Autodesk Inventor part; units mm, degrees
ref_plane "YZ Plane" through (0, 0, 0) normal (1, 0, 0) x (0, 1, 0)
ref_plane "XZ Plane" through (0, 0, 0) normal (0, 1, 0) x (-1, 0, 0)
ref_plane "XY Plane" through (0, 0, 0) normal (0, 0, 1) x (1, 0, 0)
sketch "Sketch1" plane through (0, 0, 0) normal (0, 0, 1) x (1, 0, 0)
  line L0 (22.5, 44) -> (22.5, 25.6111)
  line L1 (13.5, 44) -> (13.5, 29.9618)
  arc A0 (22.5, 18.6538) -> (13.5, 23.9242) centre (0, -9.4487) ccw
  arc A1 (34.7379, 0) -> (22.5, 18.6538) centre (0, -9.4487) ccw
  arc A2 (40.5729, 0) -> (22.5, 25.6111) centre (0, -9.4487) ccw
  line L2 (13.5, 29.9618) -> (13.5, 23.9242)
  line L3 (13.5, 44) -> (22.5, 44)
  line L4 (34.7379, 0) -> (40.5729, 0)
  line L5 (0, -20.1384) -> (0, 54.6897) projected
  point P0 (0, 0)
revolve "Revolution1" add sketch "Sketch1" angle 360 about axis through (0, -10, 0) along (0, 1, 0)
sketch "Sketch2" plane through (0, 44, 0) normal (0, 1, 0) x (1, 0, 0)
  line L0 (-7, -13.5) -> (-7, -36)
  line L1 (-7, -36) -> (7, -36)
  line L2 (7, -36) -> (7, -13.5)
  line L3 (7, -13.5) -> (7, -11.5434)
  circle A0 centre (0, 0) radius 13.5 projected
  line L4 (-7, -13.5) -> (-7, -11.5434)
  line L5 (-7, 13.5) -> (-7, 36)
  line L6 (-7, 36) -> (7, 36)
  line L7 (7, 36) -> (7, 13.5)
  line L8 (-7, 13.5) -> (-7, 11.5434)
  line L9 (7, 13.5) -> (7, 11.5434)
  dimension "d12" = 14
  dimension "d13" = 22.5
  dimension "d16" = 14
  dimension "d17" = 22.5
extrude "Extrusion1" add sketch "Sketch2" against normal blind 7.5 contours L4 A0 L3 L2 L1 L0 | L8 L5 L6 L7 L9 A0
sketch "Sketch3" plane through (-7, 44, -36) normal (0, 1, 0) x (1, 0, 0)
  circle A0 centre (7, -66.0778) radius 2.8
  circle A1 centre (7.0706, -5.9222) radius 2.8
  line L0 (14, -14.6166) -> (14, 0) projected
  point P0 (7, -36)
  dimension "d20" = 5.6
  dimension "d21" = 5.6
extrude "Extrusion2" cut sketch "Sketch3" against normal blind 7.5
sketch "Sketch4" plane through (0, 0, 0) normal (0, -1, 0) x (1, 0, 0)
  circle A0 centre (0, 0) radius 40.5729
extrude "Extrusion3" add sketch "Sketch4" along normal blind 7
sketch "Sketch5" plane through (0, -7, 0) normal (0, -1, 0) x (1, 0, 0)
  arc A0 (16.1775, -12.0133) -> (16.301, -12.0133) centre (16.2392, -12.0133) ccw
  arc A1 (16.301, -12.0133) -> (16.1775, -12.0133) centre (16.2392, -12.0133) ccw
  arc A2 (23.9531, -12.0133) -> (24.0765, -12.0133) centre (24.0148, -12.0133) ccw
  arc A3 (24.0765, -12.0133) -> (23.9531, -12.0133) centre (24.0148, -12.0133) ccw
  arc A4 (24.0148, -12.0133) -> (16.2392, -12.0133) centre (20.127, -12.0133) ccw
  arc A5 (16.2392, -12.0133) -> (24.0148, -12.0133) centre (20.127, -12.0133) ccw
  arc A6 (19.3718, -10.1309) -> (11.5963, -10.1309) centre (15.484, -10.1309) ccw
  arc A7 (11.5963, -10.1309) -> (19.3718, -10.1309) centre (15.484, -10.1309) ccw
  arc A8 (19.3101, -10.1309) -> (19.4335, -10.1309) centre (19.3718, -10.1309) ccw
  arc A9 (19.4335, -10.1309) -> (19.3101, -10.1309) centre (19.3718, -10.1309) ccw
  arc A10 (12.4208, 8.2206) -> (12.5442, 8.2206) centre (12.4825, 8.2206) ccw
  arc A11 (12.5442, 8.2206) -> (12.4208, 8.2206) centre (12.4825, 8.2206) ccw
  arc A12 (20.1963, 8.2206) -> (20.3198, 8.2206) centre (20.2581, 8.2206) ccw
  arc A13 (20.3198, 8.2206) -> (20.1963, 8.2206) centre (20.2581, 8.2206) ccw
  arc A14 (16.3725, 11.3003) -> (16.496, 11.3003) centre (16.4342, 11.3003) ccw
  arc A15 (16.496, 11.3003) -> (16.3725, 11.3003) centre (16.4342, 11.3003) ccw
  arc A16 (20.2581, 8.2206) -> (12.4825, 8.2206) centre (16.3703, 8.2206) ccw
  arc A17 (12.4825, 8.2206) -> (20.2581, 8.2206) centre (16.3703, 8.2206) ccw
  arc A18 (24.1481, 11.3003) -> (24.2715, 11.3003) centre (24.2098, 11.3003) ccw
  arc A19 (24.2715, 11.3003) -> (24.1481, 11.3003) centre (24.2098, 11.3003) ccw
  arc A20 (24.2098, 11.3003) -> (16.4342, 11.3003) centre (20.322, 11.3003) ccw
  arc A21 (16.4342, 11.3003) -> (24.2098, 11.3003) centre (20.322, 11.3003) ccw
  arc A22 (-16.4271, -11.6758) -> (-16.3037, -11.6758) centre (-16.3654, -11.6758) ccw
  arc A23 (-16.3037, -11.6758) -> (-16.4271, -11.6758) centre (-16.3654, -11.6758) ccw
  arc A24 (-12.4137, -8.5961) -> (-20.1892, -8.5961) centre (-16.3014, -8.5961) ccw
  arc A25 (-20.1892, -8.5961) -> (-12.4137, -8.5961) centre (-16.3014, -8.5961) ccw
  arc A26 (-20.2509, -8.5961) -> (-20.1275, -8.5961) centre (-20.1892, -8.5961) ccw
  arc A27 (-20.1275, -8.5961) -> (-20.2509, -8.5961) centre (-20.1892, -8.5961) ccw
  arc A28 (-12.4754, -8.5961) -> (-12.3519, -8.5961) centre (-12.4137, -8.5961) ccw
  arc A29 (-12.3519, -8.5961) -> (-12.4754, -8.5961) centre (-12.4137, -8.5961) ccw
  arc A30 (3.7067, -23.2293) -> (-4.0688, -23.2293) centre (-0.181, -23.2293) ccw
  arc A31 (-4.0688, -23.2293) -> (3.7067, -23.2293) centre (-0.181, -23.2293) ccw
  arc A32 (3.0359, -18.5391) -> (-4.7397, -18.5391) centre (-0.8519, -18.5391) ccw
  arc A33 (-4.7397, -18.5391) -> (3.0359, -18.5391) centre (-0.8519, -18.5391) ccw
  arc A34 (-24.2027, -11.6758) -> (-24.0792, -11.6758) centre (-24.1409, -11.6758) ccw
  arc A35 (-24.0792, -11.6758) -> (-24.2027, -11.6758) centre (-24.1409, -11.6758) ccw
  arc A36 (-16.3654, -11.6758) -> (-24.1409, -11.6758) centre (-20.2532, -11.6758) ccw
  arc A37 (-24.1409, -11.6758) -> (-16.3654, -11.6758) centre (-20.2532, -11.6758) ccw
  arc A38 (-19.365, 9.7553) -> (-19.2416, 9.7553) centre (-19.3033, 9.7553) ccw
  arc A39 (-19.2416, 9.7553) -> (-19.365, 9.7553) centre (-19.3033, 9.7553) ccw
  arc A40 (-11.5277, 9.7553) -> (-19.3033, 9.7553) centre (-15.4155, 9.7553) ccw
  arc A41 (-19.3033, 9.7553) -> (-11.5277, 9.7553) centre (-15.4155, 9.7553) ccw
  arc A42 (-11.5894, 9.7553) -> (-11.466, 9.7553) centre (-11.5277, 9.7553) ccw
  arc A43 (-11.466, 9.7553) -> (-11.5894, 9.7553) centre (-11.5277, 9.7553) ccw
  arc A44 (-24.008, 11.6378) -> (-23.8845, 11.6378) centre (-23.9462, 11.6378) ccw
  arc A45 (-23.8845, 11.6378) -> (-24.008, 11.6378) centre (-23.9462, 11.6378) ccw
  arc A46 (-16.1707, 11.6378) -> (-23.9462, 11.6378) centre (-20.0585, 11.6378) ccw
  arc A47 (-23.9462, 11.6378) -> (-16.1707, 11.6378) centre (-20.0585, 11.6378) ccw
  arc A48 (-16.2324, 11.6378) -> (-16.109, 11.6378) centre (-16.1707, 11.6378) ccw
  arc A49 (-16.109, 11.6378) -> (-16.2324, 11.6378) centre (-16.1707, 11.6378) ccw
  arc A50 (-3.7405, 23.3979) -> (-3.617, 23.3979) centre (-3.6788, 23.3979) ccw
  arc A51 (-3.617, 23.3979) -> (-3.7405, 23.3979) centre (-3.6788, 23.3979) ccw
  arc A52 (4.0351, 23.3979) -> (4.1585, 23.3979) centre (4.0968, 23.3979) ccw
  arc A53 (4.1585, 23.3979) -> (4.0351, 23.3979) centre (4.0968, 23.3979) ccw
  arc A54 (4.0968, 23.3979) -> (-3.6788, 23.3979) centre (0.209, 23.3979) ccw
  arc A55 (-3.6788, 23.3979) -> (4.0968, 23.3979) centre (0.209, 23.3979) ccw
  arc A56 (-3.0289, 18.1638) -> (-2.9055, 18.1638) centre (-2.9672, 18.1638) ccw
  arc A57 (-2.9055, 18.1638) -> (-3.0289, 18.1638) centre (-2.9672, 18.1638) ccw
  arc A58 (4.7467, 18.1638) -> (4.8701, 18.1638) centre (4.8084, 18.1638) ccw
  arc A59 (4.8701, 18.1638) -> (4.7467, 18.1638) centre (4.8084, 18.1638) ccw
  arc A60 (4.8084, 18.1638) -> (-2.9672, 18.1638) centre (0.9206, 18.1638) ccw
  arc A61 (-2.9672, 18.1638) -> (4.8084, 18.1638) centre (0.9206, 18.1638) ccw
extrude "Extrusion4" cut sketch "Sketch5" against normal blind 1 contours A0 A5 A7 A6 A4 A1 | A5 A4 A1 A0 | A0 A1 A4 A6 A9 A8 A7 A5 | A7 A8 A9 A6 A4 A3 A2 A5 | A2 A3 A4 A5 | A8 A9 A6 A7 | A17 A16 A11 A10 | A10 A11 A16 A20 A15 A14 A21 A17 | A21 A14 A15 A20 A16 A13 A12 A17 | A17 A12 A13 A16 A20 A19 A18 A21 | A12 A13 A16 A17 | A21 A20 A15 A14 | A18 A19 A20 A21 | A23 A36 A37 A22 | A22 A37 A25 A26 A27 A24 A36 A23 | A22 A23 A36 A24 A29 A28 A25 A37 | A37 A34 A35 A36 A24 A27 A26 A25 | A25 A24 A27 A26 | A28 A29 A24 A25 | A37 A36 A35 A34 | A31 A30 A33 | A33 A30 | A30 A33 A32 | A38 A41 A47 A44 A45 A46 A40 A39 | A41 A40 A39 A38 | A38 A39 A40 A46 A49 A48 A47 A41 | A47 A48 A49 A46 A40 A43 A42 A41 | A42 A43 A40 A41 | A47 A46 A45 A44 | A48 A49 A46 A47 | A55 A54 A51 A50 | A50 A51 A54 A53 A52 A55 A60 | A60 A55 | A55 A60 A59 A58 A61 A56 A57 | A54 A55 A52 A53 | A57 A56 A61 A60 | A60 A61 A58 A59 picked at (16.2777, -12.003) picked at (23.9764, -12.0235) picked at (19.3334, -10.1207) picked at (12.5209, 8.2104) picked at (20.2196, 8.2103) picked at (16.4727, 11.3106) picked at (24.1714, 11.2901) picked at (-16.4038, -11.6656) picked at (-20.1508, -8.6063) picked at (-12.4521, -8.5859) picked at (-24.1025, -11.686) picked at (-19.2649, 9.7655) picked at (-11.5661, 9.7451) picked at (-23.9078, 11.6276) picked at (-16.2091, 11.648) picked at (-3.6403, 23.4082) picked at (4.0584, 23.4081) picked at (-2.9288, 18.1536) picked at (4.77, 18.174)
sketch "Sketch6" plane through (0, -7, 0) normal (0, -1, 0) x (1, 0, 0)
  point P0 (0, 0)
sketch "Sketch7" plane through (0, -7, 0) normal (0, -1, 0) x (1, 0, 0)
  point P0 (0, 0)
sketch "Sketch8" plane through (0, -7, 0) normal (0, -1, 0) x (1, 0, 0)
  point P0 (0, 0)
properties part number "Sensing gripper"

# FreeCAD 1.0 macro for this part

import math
import FreeCAD as App
import Part
import Sketcher
from FreeCAD import Vector
Q = App.Units.Quantity

doc = App.newDocument("Part")
body = doc.addObject("PartDesign::Body", "Body")

sketch1 = body.newObject("Sketcher::SketchObject", "Sketch")
sketch1.AttachmentSupport = (doc.getObject("XY_Plane"), [""])
sketch1.MapMode = "FlatFace"
sketch1.addGeometry(Part.LineSegment(Vector(22, 26, 0), Vector(22, 44, 0)), False)
sketch1.addGeometry(Part.LineSegment(Vector(22, 44, 0), Vector(14, 44, 0)), False)
sketch1.addGeometry(Part.LineSegment(Vector(14, 44, 0), Vector(14, 24, 0)), False)
sketch1.addGeometry(Part.ArcOfCircle(Part.Circle(Vector(0, -9, 0), Vector(0, 0, 1), 36), math.radians(51.32), math.radians(67.98)), False)
sketch1.addGeometry(Part.ArcOfCircle(Part.Circle(Vector(0, -9, 0), Vector(0, 0, 1), 36), math.radians(15), math.radians(51)), False)
sketch1.addGeometry(Part.LineSegment(Vector(35, 0, 0), Vector(41, 0, 0)), False)
sketch1.addGeometry(Part.ArcOfCircle(Part.Circle(Vector(0, -9, 0), Vector(0, 0, 1), 42), math.radians(13), math.radians(57)), False)
sketch1.addConstraint(Sketcher.Constraint("Coincident", 0, 2, 1, 1))
sketch1.addConstraint(Sketcher.Constraint("Coincident", 1, 2, 2, 1))
sketch1.addConstraint(Sketcher.Constraint("Coincident", 2, 2, 3, 2))
sketch1.addConstraint(Sketcher.Constraint("Tangent", 3, 1, 4, 2))
sketch1.addConstraint(Sketcher.Constraint("Coincident", 4, 1, 5, 1))
sketch1.addConstraint(Sketcher.Constraint("Coincident", 5, 2, 6, 1))
sketch1.addConstraint(Sketcher.Constraint("Coincident", 6, 2, 0, 1))
sketch1.addConstraint(Sketcher.Constraint("Vertical", 0))
sketch1.addConstraint(Sketcher.Constraint("Horizontal", 1))
sketch1.addConstraint(Sketcher.Constraint("Vertical", 2))
sketch1.addConstraint(Sketcher.Constraint("Horizontal", 5))
sketch1.addConstraint(Sketcher.Constraint("Coincident", 6, 3, 3, 3))
sketch1.addConstraint(Sketcher.Constraint("Equal", 3, 4))
sketch1.addConstraint(Sketcher.Constraint("PointOnObject", 3, 3, -2))
sketch1.addConstraint(Sketcher.Constraint("PointOnObject", 4, 1, -1))
sketch1.addConstraint(Sketcher.Constraint("Vertical", 0, 2, 3, 1))
sketch1.addConstraint(Sketcher.Constraint("Radius", 3, Q("36 mm")))
sketch1.addConstraint(Sketcher.Constraint("DistanceX", 1, 2, 1, 1, Q("9 mm")))
sketch1.addConstraint(Sketcher.Constraint("DistanceY", -1, 1, 0, 2, Q("44 mm")))
sketch1.addConstraint(Sketcher.Constraint("DistanceX", -1, 1, 0, 2, Q("22.5 mm")))
sketch1.addConstraint(Sketcher.Constraint("Radius", 6, Q("41.6586 mm")))
sketch1.addConstraint(Sketcher.Constraint("DistanceX", 5, 1, 5, 2, Q("5.835 mm")))
revolution = body.newObject("PartDesign::Revolution", "Revolution")
revolution.Profile = sketch1
revolution.ReferenceAxis = (sketch1, ["V_Axis"])
revolution.Angle = 360

sketch2 = body.newObject("Sketcher::SketchObject", "Sketch001")
sketch2.AttachmentSupport = (doc.getObject("XZ_Plane"), [""])
sketch2.MapMode = "FlatFace"
sketch2.AttachmentOffset = App.Placement(Vector(0, 0, -44), App.Rotation())
sketch2.addGeometry(Part.LineSegment(Vector(-7, 12, 0), Vector(-7, 36, 0)), False)
sketch2.addGeometry(Part.LineSegment(Vector(-7, 36, 0), Vector(7, 36, 0)), False)
sketch2.addGeometry(Part.LineSegment(Vector(7, 36, 0), Vector(7, 12, 0)), False)
sketch2.addGeometry(Part.ArcOfCircle(Part.Circle(Vector(0, 0, 0), Vector(0, 0, 1), 14), math.radians(59), math.radians(121)), False)
sketch2.addGeometry(Part.LineSegment(Vector(-7, -36, 0), Vector(-7, -12, 0)), False)
sketch2.addGeometry(Part.ArcOfCircle(Part.Circle(Vector(0, 0, 0), Vector(0, 0, 1), 14), math.radians(-121), math.radians(-59)), False)
sketch2.addGeometry(Part.LineSegment(Vector(7, -12, 0), Vector(7, -36, 0)), False)
sketch2.addGeometry(Part.LineSegment(Vector(7, -36, 0), Vector(-7, -36, 0)), False)
sketch2.addConstraint(Sketcher.Constraint("Coincident", 0, 2, 1, 1))
sketch2.addConstraint(Sketcher.Constraint("Coincident", 1, 2, 2, 1))
sketch2.addConstraint(Sketcher.Constraint("Coincident", 2, 2, 3, 1))
sketch2.addConstraint(Sketcher.Constraint("Coincident", 3, 2, 0, 1))
sketch2.addConstraint(Sketcher.Constraint("Coincident", 4, 2, 5, 1))
sketch2.addConstraint(Sketcher.Constraint("Coincident", 5, 2, 6, 1))
sketch2.addConstraint(Sketcher.Constraint("Coincident", 6, 2, 7, 1))
sketch2.addConstraint(Sketcher.Constraint("Coincident", 7, 2, 4, 1))
sketch2.addConstraint(Sketcher.Constraint("Vertical", 0))
sketch2.addConstraint(Sketcher.Constraint("Horizontal", 1))
sketch2.addConstraint(Sketcher.Constraint("Vertical", 2))
sketch2.addConstraint(Sketcher.Constraint("Vertical", 4))
sketch2.addConstraint(Sketcher.Constraint("Vertical", 6))
sketch2.addConstraint(Sketcher.Constraint("Horizontal", 7))
sketch2.addConstraint(Sketcher.Constraint("Coincident", 3, 3, -1, 1))
sketch2.addConstraint(Sketcher.Constraint("Coincident", 5, 3, -1, 1))
sketch2.addConstraint(Sketcher.Constraint("Equal", 3, 5))
sketch2.addConstraint(Sketcher.Constraint("Symmetric", 0, 2, 6, 2, -1, 1))
sketch2.addConstraint(Sketcher.Constraint("Horizontal", 2, 2, 3, 2))
sketch2.addConstraint(Sketcher.Constraint("Horizontal", 4, 2, 5, 2))
sketch2.addConstraint(Sketcher.Constraint("DistanceX", 1, 1, 1, 2, Q("14 mm")))
sketch2.addConstraint(Sketcher.Constraint("Radius", 3, Q("13.5 mm")))
sketch2.addConstraint(Sketcher.Constraint("DistanceY", -1, 1, 0, 2, Q("36 mm")))
pad1 = body.newObject("PartDesign::Pad", "Pad")
pad1.Profile = sketch2
pad1.Length = 7.5

sketch3 = body.newObject("Sketcher::SketchObject", "Sketch002")
sketch3.AttachmentSupport = (doc.getObject("XZ_Plane"), [""])
sketch3.MapMode = "FlatFace"
sketch3.AttachmentOffset = App.Placement(Vector(0, 0, -44), App.Rotation())
sketch3.addGeometry(Part.Circle(Vector(0, 30.1, 0), Vector(0, 0, 1), 2.8), False)
sketch3.addGeometry(Part.Circle(Vector(0.1, -30.1, 0), Vector(0, 0, 1), 2.8), False)
sketch3.addConstraint(Sketcher.Constraint("Equal", 0, 1))
sketch3.addConstraint(Sketcher.Constraint("PointOnObject", 0, 3, -2))
sketch3.addConstraint(Sketcher.Constraint("Diameter", 0, Q("5.6 mm")))
sketch3.addConstraint(Sketcher.Constraint("DistanceY", -1, 1, 0, 3, Q("30.0778 mm")))
sketch3.addConstraint(Sketcher.Constraint("DistanceX", -1, 1, 1, 3, Q("0.0706 mm")))
sketch3.addConstraint(Sketcher.Constraint("DistanceY", 1, 3, -1, 1, Q("30.0778 mm")))
pocket1 = body.newObject("PartDesign::Pocket", "Pocket")
pocket1.Profile = sketch3
pocket1.Length = 7.5
pocket1.Reversed = True

sketch4 = body.newObject("Sketcher::SketchObject", "Sketch003")
sketch4.AttachmentSupport = (doc.getObject("XZ_Plane"), [""])
sketch4.MapMode = "FlatFace"
sketch4.addGeometry(Part.Circle(Vector(0, 0, 0), Vector(0, 0, 1), 41), False)
sketch4.addConstraint(Sketcher.Constraint("Coincident", 0, 3, -1, 1))
sketch4.addConstraint(Sketcher.Constraint("Diameter", 0, Q("81.1458 mm")))
pad2 = body.newObject("PartDesign::Pad", "Pad001")
pad2.Profile = sketch4
pad2.Length = 7

sketch5 = body.newObject("Sketcher::SketchObject", "Sketch004")
sketch5.AttachmentSupport = (doc.getObject("XZ_Plane"), [""])
sketch5.MapMode = "FlatFace"
sketch5.AttachmentOffset = App.Placement(Vector(0, 0, 7), App.Rotation())
sketch5.addGeometry(Part.ArcOfCircle(Part.Circle(Vector(20.13, -12.01, 0), Vector(0, 0, 1), 3.89), math.radians(-152), math.radians(108)), False)
sketch5.addGeometry(Part.ArcOfCircle(Part.Circle(Vector(15.48, -10.13, 0), Vector(0, 0, 1), 3.89), math.radians(28), math.radians(288)), False)
sketch5.addGeometry(Part.ArcOfCircle(Part.Circle(Vector(16.24, -12.01, 0), Vector(0, 0, 1), 0.06), math.radians(90), math.radians(270)), False)
sketch5.addGeometry(Part.ArcOfCircle(Part.Circle(Vector(20.13, -12.01, 0), Vector(0, 0, 1), 3.89), math.radians(179.09), math.radians(180.91)), False)
sketch5.addGeometry(Part.ArcOfCircle(Part.Circle(Vector(15.48, -10.13, 0), Vector(0, 0, 1), 3.89), math.radians(-0.91), math.radians(0.91)), False)
sketch5.addGeometry(Part.ArcOfCircle(Part.Circle(Vector(19.37, -10.13, 0), Vector(0, 0, 1), 0.06), math.radians(-90), math.radians(90)), False)
sketch5.addGeometry(Part.ArcOfCircle(Part.Circle(Vector(20.32, 11.3, 0), Vector(0, 0, 1), 3.89), math.radians(-92), math.radians(168)), False)
sketch5.addGeometry(Part.ArcOfCircle(Part.Circle(Vector(16.37, 8.22, 0), Vector(0, 0, 1), 3.89), math.radians(88), math.radians(348)), False)
sketch5.addGeometry(Part.ArcOfCircle(Part.Circle(Vector(20.32, 11.3, 0), Vector(0, 0, 1), 3.89), math.radians(179.09), math.radians(180.91)), False)
sketch5.addGeometry(Part.ArcOfCircle(Part.Circle(Vector(16.43, 11.3, 0), Vector(0, 0, 1), 0.06), math.radians(90), math.radians(270)), False)
sketch5.addGeometry(Part.ArcOfCircle(Part.Circle(Vector(16.37, 8.22, 0), Vector(0, 0, 1), 3.89), math.radians(-0.91), math.radians(0.91)), False)
sketch5.addGeometry(Part.ArcOfCircle(Part.Circle(Vector(20.26, 8.22, 0), Vector(0, 0, 1), 0.06), math.radians(-90), math.radians(90)), False)
sketch5.addGeometry(Part.ArcOfCircle(Part.Circle(Vector(-16.3, -8.6, 0), Vector(0, 0, 1), 3.89), math.radians(-92), math.radians(168)), False)
sketch5.addGeometry(Part.ArcOfCircle(Part.Circle(Vector(-20.25, -11.68, 0), Vector(0, 0, 1), 3.89), math.radians(88), math.radians(348)), False)
sketch5.addGeometry(Part.ArcOfCircle(Part.Circle(Vector(-16.37, -11.68, 0), Vector(0, 0, 1), 0.06), math.radians(-90), math.radians(90)), False)
sketch5.addGeometry(Part.ArcOfCircle(Part.Circle(Vector(-20.25, -11.68, 0), Vector(0, 0, 1), 3.89), math.radians(-0.91), math.radians(0.91)), False)
sketch5.addGeometry(Part.ArcOfCircle(Part.Circle(Vector(-20.19, -8.6, 0), Vector(0, 0, 1), 0.06), math.radians(90), math.radians(270)), False)
sketch5.addGeometry(Part.ArcOfCircle(Part.Circle(Vector(-16.3, -8.6, 0), Vector(0, 0, 1), 3.89), math.radians(179.09), math.radians(180.91)), False)
sketch5.addGeometry(Part.ArcOfCircle(Part.Circle(Vector(-0.85, -18.54, 0), Vector(0, 0, 1), 3.89), math.radians(-29), math.radians(226)), False)
sketch5.addGeometry(Part.ArcOfCircle(Part.Circle(Vector(-0.18, -23.23, 0), Vector(0, 0, 1), 3.89), math.radians(151), math.radians(406)), False)
sketch5.addGeometry(Part.ArcOfCircle(Part.Circle(Vector(-15.42, 9.76, 0), Vector(0, 0, 1), 3.89), math.radians(-152), math.radians(108)), False)
sketch5.addGeometry(Part.ArcOfCircle(Part.Circle(Vector(-20.06, 11.64, 0), Vector(0, 0, 1), 3.89), math.radians(28), math.radians(288)), False)
sketch5.addGeometry(Part.ArcOfCircle(Part.Circle(Vector(-19.3, 9.76, 0), Vector(0, 0, 1), 0.06), math.radians(90), math.radians(270)), False)
sketch5.addGeometry(Part.ArcOfCircle(Part.Circle(Vector(-15.42, 9.76, 0), Vector(0, 0, 1), 3.89), math.radians(179.09), math.radians(180.91)), False)
sketch5.addGeometry(Part.ArcOfCircle(Part.Circle(Vector(-20.06, 11.64, 0), Vector(0, 0, 1), 3.89), math.radians(-0.91), math.radians(0.91)), False)
sketch5.addGeometry(Part.ArcOfCircle(Part.Circle(Vector(-16.17, 11.64, 0), Vector(0, 0, 1), 0.06), math.radians(-90), math.radians(90)), False)
sketch5.addGeometry(Part.ArcOfCircle(Part.Circle(Vector(0.92, 18.16, 0), Vector(0, 0, 1), 3.89), math.radians(145), math.radians(411)), False)
sketch5.addGeometry(Part.ArcOfCircle(Part.Circle(Vector(0.21, 23.4, 0), Vector(0, 0, 1), 3.89), math.radians(-35), math.radians(231)), False)
sketch5.addConstraint(Sketcher.Constraint("Coincident", 0, 1, 1, 2))
sketch5.addConstraint(Sketcher.Constraint("Coincident", 1, 1, 0, 2))
sketch5.addConstraint(Sketcher.Constraint("Coincident", 2, 1, 3, 1))
sketch5.addConstraint(Sketcher.Constraint("Coincident", 3, 2, 2, 2))
sketch5.addConstraint(Sketcher.Constraint("Coincident", 4, 1, 5, 1))
sketch5.addConstraint(Sketcher.Constraint("Coincident", 5, 2, 4, 2))
sketch5.addConstraint(Sketcher.Constraint("Coincident", 6, 1, 7, 2))
sketch5.addConstraint(Sketcher.Constraint("Coincident", 7, 1, 6, 2))
sketch5.addConstraint(Sketcher.Constraint("Coincident", 8, 1, 9, 1))
sketch5.addConstraint(Sketcher.Constraint("Coincident", 9, 2, 8, 2))
sketch5.addConstraint(Sketcher.Constraint("Coincident", 10, 1, 11, 1))
sketch5.addConstraint(Sketcher.Constraint("Coincident", 11, 2, 10, 2))
sketch5.addConstraint(Sketcher.Constraint("Coincident", 12, 1, 13, 2))
sketch5.addConstraint(Sketcher.Constraint("Coincident", 13, 1, 12, 2))
sketch5.addConstraint(Sketcher.Constraint("Coincident", 14, 1, 15, 1))
sketch5.addConstraint(Sketcher.Constraint("Coincident", 15, 2, 14, 2))
sketch5.addConstraint(Sketcher.Constraint("Coincident", 16, 1, 17, 1))
sketch5.addConstraint(Sketcher.Constraint("Coincident", 17, 2, 16, 2))
sketch5.addConstraint(Sketcher.Constraint("Coincident", 18, 1, 19, 2))
sketch5.addConstraint(Sketcher.Constraint("Coincident", 19, 1, 18, 2))
sketch5.addConstraint(Sketcher.Constraint("Coincident", 20, 1, 21, 2))
sketch5.addConstraint(Sketcher.Constraint("Coincident", 21, 1, 20, 2))
sketch5.addConstraint(Sketcher.Constraint("Coincident", 22, 1, 23, 1))
sketch5.addConstraint(Sketcher.Constraint("Coincident", 23, 2, 22, 2))
sketch5.addConstraint(Sketcher.Constraint("Coincident", 24, 1, 25, 1))
sketch5.addConstraint(Sketcher.Constraint("Coincident", 25, 2, 24, 2))
sketch5.addConstraint(Sketcher.Constraint("Coincident", 26, 1, 27, 2))
sketch5.addConstraint(Sketcher.Constraint("Coincident", 27, 1, 26, 2))
sketch5.addConstraint(Sketcher.Constraint("Coincident", 3, 3, 0, 3))
sketch5.addConstraint(Sketcher.Constraint("Coincident", 4, 3, 1, 3))
sketch5.addConstraint(Sketcher.Constraint("Coincident", 8, 3, 6, 3))
sketch5.addConstraint(Sketcher.Constraint("Coincident", 10, 3, 7, 3))
sketch5.addConstraint(Sketcher.Constraint("Coincident", 15, 3, 13, 3))
sketch5.addConstraint(Sketcher.Constraint("Coincident", 17, 3, 12, 3))
sketch5.addConstraint(Sketcher.Constraint("Coincident", 23, 3, 20, 3))
sketch5.addConstraint(Sketcher.Constraint("Coincident", 24, 3, 21, 3))
sketch5.addConstraint(Sketcher.Constraint("Equal", 0, 1))
sketch5.addConstraint(Sketcher.Constraint("Equal", 1, 3))
sketch5.addConstraint(Sketcher.Constraint("Equal", 3, 4))
sketch5.addConstraint(Sketcher.Constraint("Equal", 2, 5))
sketch5.addConstraint(Sketcher.Constraint("Equal", 4, 6))
sketch5.addConstraint(Sketcher.Constraint("Equal", 6, 7))
sketch5.addConstraint(Sketcher.Constraint("Equal", 7, 8))
sketch5.addConstraint(Sketcher.Constraint("Equal", 5, 9))
sketch5.addConstraint(Sketcher.Constraint("Equal", 8, 10))
sketch5.addConstraint(Sketcher.Constraint("Equal", 9, 11))
sketch5.addConstraint(Sketcher.Constraint("Equal", 10, 12))
sketch5.addConstraint(Sketcher.Constraint("Equal", 12, 13))
sketch5.addConstraint(Sketcher.Constraint("Equal", 11, 14))
sketch5.addConstraint(Sketcher.Constraint("Equal", 13, 15))
sketch5.addConstraint(Sketcher.Constraint("Equal", 14, 16))
sketch5.addConstraint(Sketcher.Constraint("Equal", 15, 17))
sketch5.addConstraint(Sketcher.Constraint("Equal", 17, 18))
sketch5.addConstraint(Sketcher.Constraint("Equal", 18, 19))
sketch5.addConstraint(Sketcher.Constraint("Equal", 19, 20))
sketch5.addConstraint(Sketcher.Constraint("Equal", 20, 21))
sketch5.addConstraint(Sketcher.Constraint("Equal", 16, 22))
sketch5.addConstraint(Sketcher.Constraint("Equal", 21, 23))
sketch5.addConstraint(Sketcher.Constraint("Equal", 23, 24))
sketch5.addConstraint(Sketcher.Constraint("Equal", 22, 25))
sketch5.addConstraint(Sketcher.Constraint("Equal", 24, 26))
sketch5.addConstraint(Sketcher.Constraint("Equal", 26, 27))
sketch5.addConstraint(Sketcher.Constraint("Horizontal", 0, 3, 2, 3))
sketch5.addConstraint(Sketcher.Constraint("Horizontal", 4, 3, 5, 3))
sketch5.addConstraint(Sketcher.Constraint("Horizontal", 8, 3, 9, 3))
sketch5.addConstraint(Sketcher.Constraint("Horizontal", 10, 3, 11, 3))
sketch5.addConstraint(Sketcher.Constraint("Horizontal", 13, 3, 14, 3))
sketch5.addConstraint(Sketcher.Constraint("Horizontal", 12, 3, 16, 3))
sketch5.addConstraint(Sketcher.Constraint("Horizontal", 20, 3, 22, 3))
sketch5.addConstraint(Sketcher.Constraint("Horizontal", 24, 3, 25, 3))
sketch5.addConstraint(Sketcher.Constraint("Radius", 0, Q("3.8878 mm")))
sketch5.addConstraint(Sketcher.Constraint("Radius", 2, Q("0.0618 mm")))
sketch5.addConstraint(Sketcher.Constraint("DistanceX", 21, 1, -1, 1, Q("16.62 mm")))
sketch5.addConstraint(Sketcher.Constraint("DistanceX", 14, 3, 20, 3, Q("0.95 mm")))
sketch5.addConstraint(Sketcher.Constraint("DistanceY", 25, 3, 27, 3, Q("11.76 mm")))
sketch5.addConstraint(Sketcher.Constraint("DistanceX", -1, 1, 0, 3, Q("20.127 mm")))
sketch5.addConstraint(Sketcher.Constraint("DistanceX", -1, 1, 1, 3, Q("15.484 mm")))
sketch5.addConstraint(Sketcher.Constraint("DistanceY", 1, 3, -1, 1, Q("10.131 mm")))
sketch5.addConstraint(Sketcher.Constraint("DistanceX", -1, 1, 6, 3, Q("20.322 mm")))
sketch5.addConstraint(Sketcher.Constraint("DistanceX", -1, 1, 11, 3, Q("20.258 mm")))
sketch5.addConstraint(Sketcher.Constraint("DistanceY", 12, 3, -1, 1, Q("8.596 mm")))
sketch5.addConstraint(Sketcher.Constraint("DistanceX", 18, 3, -1, 1, Q("0.852 mm")))
sketch5.addConstraint(Sketcher.Constraint("DistanceY", 18, 3, -1, 1, Q("18.539 mm")))
sketch5.addConstraint(Sketcher.Constraint("DistanceX", 19, 3, -1, 1, Q("0.181 mm")))
sketch5.addConstraint(Sketcher.Constraint("DistanceX", -1, 1, 27, 3, Q("0.209 mm")))
sketch5.addConstraint(Sketcher.Constraint("DistanceY", -1, 1, 27, 3, Q("23.398 mm")))
sketch5.addConstraint(Sketcher.Constraint("DistanceY", 3, 2, -1, 1, Q("12.075 mm")))
sketch5.addConstraint(Sketcher.Constraint("DistanceY", -1, 1, 8, 1, Q("11.362 mm")))
sketch5.addConstraint(Sketcher.Constraint("DistanceY", 12, 1, -1, 1, Q("12.481 mm")))
sketch5.addConstraint(Sketcher.Constraint("DistanceX", 14, 1, -1, 1, Q("16.366 mm")))
sketch5.addConstraint(Sketcher.Constraint("DistanceY", 15, 2, -1, 1, Q("11.614 mm")))
sketch5.addConstraint(Sketcher.Constraint("DistanceX", -1, 1, 18, 1, Q("2.535 mm")))
sketch5.addConstraint(Sketcher.Constraint("DistanceY", -1, 1, 22, 1, Q("9.817 mm")))
sketch5.addConstraint(Sketcher.Constraint("DistanceX", 2, 3, 7, 3, Q("0.131 mm")))
sketch5.addConstraint(Sketcher.Constraint("DistanceY", 2, 3, 7, 3, Q("20.234 mm")))
sketch5.addConstraint(Sketcher.Constraint("DistanceX", 7, 3, 9, 3, Q("0.064 mm")))
sketch5.addConstraint(Sketcher.Constraint("DistanceX", 9, 3, 11, 3, Q("3.824 mm")))
sketch5.addConstraint(Sketcher.Constraint("DistanceX", 13, 3, 5, 3, Q("39.625 mm")))
sketch5.addConstraint(Sketcher.Constraint("DistanceX", 14, 3, 12, 3, Q("0.064 mm")))
sketch5.addConstraint(Sketcher.Constraint("DistanceX", 13, 3, 16, 3, Q("0.064 mm")))
sketch5.addConstraint(Sketcher.Constraint("DistanceX", 16, 3, 22, 3, Q("0.886 mm")))
sketch5.addConstraint(Sketcher.Constraint("DistanceY", 25, 3, 26, 3, Q("6.526 mm")))
sketch5.addConstraint(Sketcher.Constraint("DistanceX", 20, 3, 26, 3, Q("16.336 mm")))
sketch5.addConstraint(Sketcher.Constraint("DistanceX", 22, 1, 25, 3, Q("3.132 mm")))
pocket2 = body.newObject("PartDesign::Pocket", "Pocket001")
pocket2.Profile = sketch5
pocket2.Length = 1

doc.recompute()
